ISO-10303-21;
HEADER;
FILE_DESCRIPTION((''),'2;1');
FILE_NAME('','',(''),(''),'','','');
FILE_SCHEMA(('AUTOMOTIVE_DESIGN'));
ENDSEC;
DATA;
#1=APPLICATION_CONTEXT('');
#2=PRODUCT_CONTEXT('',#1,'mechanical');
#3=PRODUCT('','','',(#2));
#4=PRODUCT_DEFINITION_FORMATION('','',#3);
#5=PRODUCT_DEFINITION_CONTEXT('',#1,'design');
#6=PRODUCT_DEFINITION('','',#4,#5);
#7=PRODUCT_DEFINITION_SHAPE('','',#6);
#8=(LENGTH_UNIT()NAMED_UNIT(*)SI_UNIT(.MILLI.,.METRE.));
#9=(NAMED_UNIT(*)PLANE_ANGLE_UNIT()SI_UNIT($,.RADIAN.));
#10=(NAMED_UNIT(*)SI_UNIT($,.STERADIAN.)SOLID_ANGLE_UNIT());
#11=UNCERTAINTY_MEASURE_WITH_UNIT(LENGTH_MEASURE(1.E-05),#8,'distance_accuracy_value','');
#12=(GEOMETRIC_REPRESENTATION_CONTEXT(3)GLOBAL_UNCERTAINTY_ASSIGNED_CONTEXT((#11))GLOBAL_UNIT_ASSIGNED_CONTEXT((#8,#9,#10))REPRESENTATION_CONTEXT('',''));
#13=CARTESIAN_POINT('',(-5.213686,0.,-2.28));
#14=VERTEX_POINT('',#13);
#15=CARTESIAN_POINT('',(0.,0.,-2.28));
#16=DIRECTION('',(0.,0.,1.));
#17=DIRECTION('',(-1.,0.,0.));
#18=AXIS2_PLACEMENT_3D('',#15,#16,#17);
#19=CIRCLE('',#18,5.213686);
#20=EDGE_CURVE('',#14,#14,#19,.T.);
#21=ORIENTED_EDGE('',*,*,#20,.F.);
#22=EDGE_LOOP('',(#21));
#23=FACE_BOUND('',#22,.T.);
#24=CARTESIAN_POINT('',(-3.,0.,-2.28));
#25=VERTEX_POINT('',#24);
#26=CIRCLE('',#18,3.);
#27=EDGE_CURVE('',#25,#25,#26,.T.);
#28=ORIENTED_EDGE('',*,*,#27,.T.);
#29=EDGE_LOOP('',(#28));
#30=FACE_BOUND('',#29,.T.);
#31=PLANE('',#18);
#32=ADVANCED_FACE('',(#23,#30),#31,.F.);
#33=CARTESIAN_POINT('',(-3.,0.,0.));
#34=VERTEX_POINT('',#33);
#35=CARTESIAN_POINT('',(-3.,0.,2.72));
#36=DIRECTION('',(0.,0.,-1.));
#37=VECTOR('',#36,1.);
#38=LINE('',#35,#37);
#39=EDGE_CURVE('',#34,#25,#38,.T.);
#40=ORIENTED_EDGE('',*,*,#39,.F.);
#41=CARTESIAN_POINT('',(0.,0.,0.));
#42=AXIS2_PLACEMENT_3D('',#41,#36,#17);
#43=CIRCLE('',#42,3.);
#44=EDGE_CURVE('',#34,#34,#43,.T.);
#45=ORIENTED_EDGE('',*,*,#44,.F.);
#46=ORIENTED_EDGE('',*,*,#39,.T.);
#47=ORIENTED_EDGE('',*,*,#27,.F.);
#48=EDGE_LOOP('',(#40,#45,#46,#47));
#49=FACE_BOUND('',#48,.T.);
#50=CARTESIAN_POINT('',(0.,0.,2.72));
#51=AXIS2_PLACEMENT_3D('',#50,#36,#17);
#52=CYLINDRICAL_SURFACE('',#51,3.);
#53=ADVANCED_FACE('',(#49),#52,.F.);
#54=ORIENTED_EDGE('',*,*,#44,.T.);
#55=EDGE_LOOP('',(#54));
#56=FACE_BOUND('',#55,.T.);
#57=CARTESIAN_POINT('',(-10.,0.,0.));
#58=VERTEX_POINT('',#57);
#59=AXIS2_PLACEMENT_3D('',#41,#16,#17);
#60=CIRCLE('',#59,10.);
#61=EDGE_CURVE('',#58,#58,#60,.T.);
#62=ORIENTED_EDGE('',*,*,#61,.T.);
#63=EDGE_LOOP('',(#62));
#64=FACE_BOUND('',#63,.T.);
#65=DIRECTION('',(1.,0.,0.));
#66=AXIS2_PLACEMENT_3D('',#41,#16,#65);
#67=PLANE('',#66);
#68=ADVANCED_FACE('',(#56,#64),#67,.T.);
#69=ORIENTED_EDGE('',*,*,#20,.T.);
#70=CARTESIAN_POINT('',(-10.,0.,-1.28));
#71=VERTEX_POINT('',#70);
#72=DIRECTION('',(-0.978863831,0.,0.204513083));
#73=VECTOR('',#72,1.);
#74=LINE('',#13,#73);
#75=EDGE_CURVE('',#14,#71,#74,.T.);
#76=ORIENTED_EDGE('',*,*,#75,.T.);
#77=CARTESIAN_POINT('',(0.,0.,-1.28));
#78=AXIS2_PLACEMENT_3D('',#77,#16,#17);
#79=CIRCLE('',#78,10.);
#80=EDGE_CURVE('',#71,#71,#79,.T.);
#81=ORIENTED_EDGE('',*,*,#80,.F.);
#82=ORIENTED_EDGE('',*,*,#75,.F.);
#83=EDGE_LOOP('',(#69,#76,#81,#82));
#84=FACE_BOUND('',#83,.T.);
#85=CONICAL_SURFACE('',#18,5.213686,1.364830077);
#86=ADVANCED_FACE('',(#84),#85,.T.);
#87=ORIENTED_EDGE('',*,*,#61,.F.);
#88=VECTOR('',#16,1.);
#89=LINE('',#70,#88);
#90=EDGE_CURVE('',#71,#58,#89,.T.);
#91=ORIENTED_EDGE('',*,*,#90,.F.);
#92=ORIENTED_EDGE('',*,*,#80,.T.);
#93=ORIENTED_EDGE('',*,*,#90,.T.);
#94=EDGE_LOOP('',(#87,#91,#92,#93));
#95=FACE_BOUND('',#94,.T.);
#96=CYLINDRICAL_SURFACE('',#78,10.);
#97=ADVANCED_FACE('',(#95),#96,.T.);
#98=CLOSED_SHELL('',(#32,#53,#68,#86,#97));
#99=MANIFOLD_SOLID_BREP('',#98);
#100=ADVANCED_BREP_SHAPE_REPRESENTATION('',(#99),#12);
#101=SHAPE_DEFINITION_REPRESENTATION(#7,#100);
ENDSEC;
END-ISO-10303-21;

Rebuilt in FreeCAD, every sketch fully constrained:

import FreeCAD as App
import Part
import Sketcher
Q = App.Units.Quantity


def add_polygon(sketch, points):
    """Adds a closed chain of lines whose ends are joined by coincident constraints."""
    first, n = sketch.GeometryCount, len(points)
    for a, b in zip(points, points[1:] + points[:1]):
        sketch.addGeometry(Part.LineSegment(App.Vector(*a, 0), App.Vector(*b, 0)), False)
    for i in range(n):
        sketch.addConstraint(Sketcher.Constraint("Coincident", first + i, 2, first + (i + 1) % n, 1))

doc = App.newDocument("Part")
body = doc.addObject("PartDesign::Body", "Body")

# Sketch on XY plane
sketch1 = body.newObject("Sketcher::SketchObject", "Sketch")
sketch1.AttachmentSupport = (doc.getObject("XY_Plane"), [""])
sketch1.MapMode = "FlatFace"
sketch1.addGeometry(Part.Circle(App.Vector(0, 0, 0), App.Vector(0, 0, 1), 15), False)
sketch1.addConstraint(Sketcher.Constraint("Coincident", 0, 3, -1, 1))
sketch1.addConstraint(Sketcher.Constraint("Diameter", 0, Q("30 mm")))
pad1 = body.newObject("PartDesign::Pad", "Pad")
pad1.Profile = sketch1
pad1.Length = 10
body2 = doc.addObject("PartDesign::Body", "Body001")

# Sketch on XY plane
sketch2 = body2.newObject("Sketcher::SketchObject", "Sketch001")
sketch2.AttachmentSupport = (doc.getObject("XY_Plane001"), [""])
sketch2.MapMode = "FlatFace"
add_polygon(sketch2, [(-5.2, 0), (-3, 0), (-3, 5), (-10, 5), (-10, 1)])  # lines 0-4
sketch2.addConstraint(Sketcher.Constraint("Horizontal", 0))
sketch2.addConstraint(Sketcher.Constraint("Vertical", 1))
sketch2.addConstraint(Sketcher.Constraint("Horizontal", 2))
sketch2.addConstraint(Sketcher.Constraint("Vertical", 3))
sketch2.addConstraint(Sketcher.Constraint("PointOnObject", 0, 2, -1))
sketch2.addConstraint(Sketcher.Constraint("DistanceX", 2, 2, 2, 1, Q("7 mm")))
sketch2.addConstraint(Sketcher.Constraint("DistanceY", 1, 1, 1, 2, Q("5 mm")))
sketch2.addConstraint(Sketcher.Constraint("DistanceY", 3, 2, 3, 1, Q("4 mm")))
sketch2.addConstraint(Sketcher.Constraint("DistanceX", 0, 2, -1, 1, Q("3 mm")))
sketch2.addConstraint(Sketcher.Constraint("DistanceX", 0, 1, 0, 2, Q("2.213686 mm")))
revolution = body2.newObject("PartDesign::Revolution", "Revolution")
revolution.Profile = sketch2
revolution.ReferenceAxis = (sketch2, ["V_Axis"])
revolution.Angle = 360
body3 = doc.addObject("PartDesign::Body", "Body002")
doc.recompute()

body2.Placement = App.Placement(App.Vector(0, 0, 0), App.Rotation(App.Vector(1, 0, 0), 90))
boolean = body3.newObject("PartDesign::Boolean", "Boolean")
boolean.Type = "Fuse"
boolean.addObjects([body2])
body4 = doc.addObject("PartDesign::Body", "Body003")
doc.recompute()

body3.Placement = App.Placement(App.Vector(0, 0, -2.28), App.Rotation(App.Vector(0, 0, 1), 0))
boolean2 = body4.newObject("PartDesign::Boolean", "Boolean001")
boolean2.Type = "Fuse"
boolean2.addObjects([body3])
doc.recompute()

boolean3 = body4.newObject("PartDesign::Boolean", "Boolean002")
boolean3.Type = "Cut"
boolean3.addObjects([body])

doc.recompute()
